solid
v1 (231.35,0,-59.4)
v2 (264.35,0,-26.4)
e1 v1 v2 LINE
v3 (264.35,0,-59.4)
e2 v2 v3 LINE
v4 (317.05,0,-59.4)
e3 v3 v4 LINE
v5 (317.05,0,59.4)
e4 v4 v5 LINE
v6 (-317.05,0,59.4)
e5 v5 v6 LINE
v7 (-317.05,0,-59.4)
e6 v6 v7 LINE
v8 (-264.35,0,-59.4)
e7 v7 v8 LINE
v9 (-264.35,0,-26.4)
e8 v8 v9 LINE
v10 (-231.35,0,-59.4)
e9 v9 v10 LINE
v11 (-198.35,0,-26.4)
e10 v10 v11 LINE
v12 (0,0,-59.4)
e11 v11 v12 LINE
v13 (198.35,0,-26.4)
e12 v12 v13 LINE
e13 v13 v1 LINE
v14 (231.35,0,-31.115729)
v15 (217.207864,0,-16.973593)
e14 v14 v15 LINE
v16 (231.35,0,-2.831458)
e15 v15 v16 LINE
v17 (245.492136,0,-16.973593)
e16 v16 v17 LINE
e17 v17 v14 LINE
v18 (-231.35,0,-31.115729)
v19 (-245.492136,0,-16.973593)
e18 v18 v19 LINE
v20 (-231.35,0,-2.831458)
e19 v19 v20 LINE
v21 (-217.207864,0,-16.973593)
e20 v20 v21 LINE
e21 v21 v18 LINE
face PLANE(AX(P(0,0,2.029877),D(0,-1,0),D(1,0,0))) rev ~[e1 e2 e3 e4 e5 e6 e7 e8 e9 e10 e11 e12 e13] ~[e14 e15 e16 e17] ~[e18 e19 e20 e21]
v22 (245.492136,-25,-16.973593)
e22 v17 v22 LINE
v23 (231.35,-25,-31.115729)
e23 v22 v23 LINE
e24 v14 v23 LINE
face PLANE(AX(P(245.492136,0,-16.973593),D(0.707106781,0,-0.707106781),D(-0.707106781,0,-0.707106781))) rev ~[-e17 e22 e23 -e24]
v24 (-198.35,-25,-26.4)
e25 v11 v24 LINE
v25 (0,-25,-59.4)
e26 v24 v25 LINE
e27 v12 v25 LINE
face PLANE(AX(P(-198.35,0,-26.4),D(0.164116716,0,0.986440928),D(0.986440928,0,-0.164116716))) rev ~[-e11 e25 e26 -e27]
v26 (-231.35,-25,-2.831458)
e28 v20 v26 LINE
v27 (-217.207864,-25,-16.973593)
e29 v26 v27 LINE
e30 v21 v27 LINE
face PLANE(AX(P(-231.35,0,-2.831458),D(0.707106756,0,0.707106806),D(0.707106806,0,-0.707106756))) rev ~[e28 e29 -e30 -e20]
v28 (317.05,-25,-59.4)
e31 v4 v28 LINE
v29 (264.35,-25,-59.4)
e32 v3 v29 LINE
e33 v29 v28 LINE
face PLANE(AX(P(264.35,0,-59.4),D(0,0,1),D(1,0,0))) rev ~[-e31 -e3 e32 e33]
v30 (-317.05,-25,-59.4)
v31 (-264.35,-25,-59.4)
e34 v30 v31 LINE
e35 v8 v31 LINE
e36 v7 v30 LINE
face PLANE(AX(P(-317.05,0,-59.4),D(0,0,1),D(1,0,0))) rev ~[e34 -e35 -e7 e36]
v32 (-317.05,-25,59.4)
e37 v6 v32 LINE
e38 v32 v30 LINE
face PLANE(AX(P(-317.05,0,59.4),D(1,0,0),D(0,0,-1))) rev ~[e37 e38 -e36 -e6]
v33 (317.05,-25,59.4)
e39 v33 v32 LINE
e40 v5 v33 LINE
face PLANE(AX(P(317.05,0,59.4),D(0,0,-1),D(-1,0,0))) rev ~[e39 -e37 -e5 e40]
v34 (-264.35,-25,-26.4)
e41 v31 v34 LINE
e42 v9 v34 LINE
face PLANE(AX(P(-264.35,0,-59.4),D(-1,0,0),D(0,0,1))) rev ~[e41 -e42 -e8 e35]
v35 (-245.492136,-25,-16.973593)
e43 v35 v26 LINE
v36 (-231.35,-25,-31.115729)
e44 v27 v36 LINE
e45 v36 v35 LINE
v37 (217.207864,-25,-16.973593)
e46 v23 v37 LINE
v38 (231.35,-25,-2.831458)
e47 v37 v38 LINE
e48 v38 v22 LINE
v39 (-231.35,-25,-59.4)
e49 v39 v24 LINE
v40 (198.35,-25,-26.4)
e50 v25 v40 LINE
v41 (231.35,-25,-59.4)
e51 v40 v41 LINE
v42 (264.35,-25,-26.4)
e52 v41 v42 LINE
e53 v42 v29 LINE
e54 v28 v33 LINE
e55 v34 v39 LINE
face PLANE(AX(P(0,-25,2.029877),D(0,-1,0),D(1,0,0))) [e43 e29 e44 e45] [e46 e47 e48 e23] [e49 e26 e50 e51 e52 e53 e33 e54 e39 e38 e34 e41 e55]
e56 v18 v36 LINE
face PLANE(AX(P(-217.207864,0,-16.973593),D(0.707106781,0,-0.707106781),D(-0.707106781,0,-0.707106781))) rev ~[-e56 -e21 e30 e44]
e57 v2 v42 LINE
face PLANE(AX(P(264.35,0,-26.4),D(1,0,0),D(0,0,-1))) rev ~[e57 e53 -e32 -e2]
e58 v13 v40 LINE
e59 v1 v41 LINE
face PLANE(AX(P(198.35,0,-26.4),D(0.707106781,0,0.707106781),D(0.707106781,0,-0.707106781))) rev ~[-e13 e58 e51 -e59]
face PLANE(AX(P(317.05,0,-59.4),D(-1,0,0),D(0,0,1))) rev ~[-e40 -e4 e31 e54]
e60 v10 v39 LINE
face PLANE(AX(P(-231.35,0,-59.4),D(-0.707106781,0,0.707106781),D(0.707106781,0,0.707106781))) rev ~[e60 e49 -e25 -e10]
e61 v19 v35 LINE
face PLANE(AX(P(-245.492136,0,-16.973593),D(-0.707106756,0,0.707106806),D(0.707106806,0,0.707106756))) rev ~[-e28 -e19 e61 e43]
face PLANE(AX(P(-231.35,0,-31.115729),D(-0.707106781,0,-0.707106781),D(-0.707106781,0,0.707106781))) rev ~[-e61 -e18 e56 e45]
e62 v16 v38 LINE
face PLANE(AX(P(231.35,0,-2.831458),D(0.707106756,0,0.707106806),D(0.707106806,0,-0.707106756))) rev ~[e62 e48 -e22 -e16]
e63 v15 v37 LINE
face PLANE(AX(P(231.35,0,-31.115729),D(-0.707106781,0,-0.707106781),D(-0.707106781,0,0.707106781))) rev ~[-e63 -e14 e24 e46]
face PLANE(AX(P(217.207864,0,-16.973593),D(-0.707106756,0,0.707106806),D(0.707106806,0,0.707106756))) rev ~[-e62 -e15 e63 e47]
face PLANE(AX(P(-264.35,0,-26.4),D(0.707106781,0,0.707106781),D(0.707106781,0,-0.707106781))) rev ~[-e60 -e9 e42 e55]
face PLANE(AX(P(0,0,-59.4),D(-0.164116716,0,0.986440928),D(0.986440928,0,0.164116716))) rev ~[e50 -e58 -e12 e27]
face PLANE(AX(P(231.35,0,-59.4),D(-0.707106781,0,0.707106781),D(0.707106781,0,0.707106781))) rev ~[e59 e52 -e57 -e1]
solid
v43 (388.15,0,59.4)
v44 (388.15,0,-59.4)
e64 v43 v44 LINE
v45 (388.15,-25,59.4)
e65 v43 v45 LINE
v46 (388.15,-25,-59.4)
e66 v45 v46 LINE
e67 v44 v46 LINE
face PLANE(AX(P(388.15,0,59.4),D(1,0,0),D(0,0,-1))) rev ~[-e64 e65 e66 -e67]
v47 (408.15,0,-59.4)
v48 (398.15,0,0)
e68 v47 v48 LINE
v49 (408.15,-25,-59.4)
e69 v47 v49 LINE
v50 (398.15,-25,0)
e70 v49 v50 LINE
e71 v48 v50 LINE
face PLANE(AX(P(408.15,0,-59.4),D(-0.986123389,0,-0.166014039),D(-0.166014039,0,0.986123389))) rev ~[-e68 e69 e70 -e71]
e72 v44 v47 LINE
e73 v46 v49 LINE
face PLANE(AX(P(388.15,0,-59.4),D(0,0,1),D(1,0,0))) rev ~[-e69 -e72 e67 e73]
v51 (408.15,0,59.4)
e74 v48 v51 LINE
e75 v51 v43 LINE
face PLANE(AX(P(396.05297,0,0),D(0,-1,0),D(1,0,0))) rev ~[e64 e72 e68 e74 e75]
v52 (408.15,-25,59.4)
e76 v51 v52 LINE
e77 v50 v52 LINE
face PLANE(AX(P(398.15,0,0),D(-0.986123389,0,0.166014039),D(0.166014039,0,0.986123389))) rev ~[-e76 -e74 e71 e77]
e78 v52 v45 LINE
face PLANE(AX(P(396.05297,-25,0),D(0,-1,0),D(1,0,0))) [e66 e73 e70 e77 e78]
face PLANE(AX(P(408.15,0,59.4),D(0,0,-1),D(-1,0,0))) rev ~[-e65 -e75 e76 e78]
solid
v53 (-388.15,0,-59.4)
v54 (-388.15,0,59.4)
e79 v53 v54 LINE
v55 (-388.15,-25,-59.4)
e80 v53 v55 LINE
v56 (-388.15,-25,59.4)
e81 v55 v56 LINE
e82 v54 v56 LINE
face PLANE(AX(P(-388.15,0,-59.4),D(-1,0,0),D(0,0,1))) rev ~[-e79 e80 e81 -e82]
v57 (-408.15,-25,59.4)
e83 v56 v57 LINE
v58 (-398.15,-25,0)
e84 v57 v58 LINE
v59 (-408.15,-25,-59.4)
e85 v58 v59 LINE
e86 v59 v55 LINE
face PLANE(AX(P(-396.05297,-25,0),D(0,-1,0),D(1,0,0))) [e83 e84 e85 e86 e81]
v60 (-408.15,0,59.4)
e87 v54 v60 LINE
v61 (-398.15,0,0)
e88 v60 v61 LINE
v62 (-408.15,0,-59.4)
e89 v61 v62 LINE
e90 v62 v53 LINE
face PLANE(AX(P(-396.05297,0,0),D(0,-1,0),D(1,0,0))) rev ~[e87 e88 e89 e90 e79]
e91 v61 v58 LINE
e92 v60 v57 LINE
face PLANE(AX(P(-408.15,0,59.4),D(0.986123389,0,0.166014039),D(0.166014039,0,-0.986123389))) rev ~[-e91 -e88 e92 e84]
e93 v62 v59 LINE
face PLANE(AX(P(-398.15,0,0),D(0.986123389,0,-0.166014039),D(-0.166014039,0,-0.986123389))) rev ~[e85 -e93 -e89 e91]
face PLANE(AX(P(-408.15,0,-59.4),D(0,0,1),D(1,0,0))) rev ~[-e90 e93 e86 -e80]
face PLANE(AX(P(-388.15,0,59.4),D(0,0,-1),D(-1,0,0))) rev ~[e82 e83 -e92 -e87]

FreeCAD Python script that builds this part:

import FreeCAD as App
import Part
import Sketcher

V = App.Vector
Q = App.Units.Quantity


def add_polygon(sketch, points):
    """Adds a closed chain of lines whose ends are joined by coincident constraints."""
    first, n = sketch.GeometryCount, len(points)
    for a, b in zip(points, points[1:] + points[:1]):
        sketch.addGeometry(Part.LineSegment(App.Vector(*a, 0), App.Vector(*b, 0)), False)
    for i in range(n):
        sketch.addConstraint(Sketcher.Constraint("Coincident", first + i, 2, first + (i + 1) % n, 1))

doc = App.newDocument("Part")
body = doc.addObject("PartDesign::Body", "Body")
body.AllowCompound = True

sketch1 = body.newObject("Sketcher::SketchObject", "Sketch")
sketch1.AttachmentSupport = (doc.getObject("XZ_Plane"), [""])
sketch1.MapMode = "FlatFace"
add_polygon(sketch1, [(-388, -59), (-388, 59), (-408, 59), (-398, 0), (-408, -59)])
add_polygon(sketch1, [(264, -59), (317, -59), (317, 59), (-317, 59), (-317, -59), (-264, -59), (-264, -26), (-231, -59), (-198, -26), (0, -59), (198, -26), (231, -59), (264, -26)])
add_polygon(sketch1, [(-231, -31), (-245, -17), (-231, -3), (-217, -17)])
add_polygon(sketch1, [(245, -17), (231, -31), (217, -17), (231, -3)])
add_polygon(sketch1, [(388, -59), (408, -59), (398, 0), (408, 59), (388, 59)])
sketch1.addConstraint(Sketcher.Constraint("Vertical", 0))
sketch1.addConstraint(Sketcher.Constraint("Horizontal", 1))
sketch1.addConstraint(Sketcher.Constraint("Horizontal", 4))
sketch1.addConstraint(Sketcher.Constraint("Horizontal", 5))
sketch1.addConstraint(Sketcher.Constraint("Vertical", 6))
sketch1.addConstraint(Sketcher.Constraint("Horizontal", 7))
sketch1.addConstraint(Sketcher.Constraint("Vertical", 8))
sketch1.addConstraint(Sketcher.Constraint("Horizontal", 9))
sketch1.addConstraint(Sketcher.Constraint("Vertical", 10))
sketch1.addConstraint(Sketcher.Constraint("Vertical", 17))
sketch1.addConstraint(Sketcher.Constraint("Horizontal", 26))
sketch1.addConstraint(Sketcher.Constraint("Horizontal", 29))
sketch1.addConstraint(Sketcher.Constraint("Vertical", 30))
sketch1.addConstraint(Sketcher.Constraint("Symmetric", 5, 2, 7, 2, -1, 1))
sketch1.addConstraint(Sketcher.Constraint("Symmetric", 1, 2, 26, 2, -1, 1))
sketch1.addConstraint(Sketcher.Constraint("Symmetric", 2, 2, 27, 2, -1, 1))
sketch1.addConstraint(Sketcher.Constraint("Symmetric", 3, 2, 28, 2, -1, 1))
sketch1.addConstraint(Sketcher.Constraint("Symmetric", 12, 2, 14, 2, -2))
sketch1.addConstraint(Sketcher.Constraint("Symmetric", 11, 2, 15, 2, -2))
sketch1.addConstraint(Sketcher.Constraint("Symmetric", 10, 2, 16, 2, -2))
sketch1.addConstraint(Sketcher.Constraint("Symmetric", 21, 2, 22, 2, -2))
sketch1.addConstraint(Sketcher.Constraint("Symmetric", 20, 2, 23, 2, -2))
sketch1.addConstraint(Sketcher.Constraint("Symmetric", 19, 2, 24, 2, -2))
sketch1.addConstraint(Sketcher.Constraint("Symmetric", 18, 2, 25, 2, -2))
sketch1.addConstraint(Sketcher.Constraint("Symmetric", 3, 2, 26, 2, -2))
sketch1.addConstraint(Sketcher.Constraint("PointOnObject", 2, 2, -1))
sketch1.addConstraint(Sketcher.Constraint("PointOnObject", 13, 2, -2))
sketch1.addConstraint(Sketcher.Constraint("Perpendicular", 11, 12))
sketch1.addConstraint(Sketcher.Constraint("Perpendicular", 12, 15))
sketch1.addConstraint(Sketcher.Constraint("Perpendicular", 16, 18))
sketch1.addConstraint(Sketcher.Constraint("Perpendicular", 18, 19))
sketch1.addConstraint(Sketcher.Constraint("Perpendicular", 19, 20))
sketch1.addConstraint(Sketcher.Constraint("Perpendicular", 20, 21))
sketch1.addConstraint(Sketcher.Constraint("Horizontal", 4, 2, 5, 2))
sketch1.addConstraint(Sketcher.Constraint("Horizontal", 5, 2, 8, 2))
sketch1.addConstraint(Sketcher.Constraint("Horizontal", 9, 2, 11, 2))
sketch1.addConstraint(Sketcher.Constraint("Horizontal", 10, 2, 12, 2))
sketch1.addConstraint(Sketcher.Constraint("Horizontal", 11, 2, 13, 2))
sketch1.addConstraint(Sketcher.Constraint("Horizontal", 18, 2, 20, 2))
sketch1.addConstraint(Sketcher.Constraint("Vertical", 11, 2, 19, 2))
sketch1.addConstraint(Sketcher.Constraint("Equal", 4, 26))
sketch1.addConstraint(Sketcher.Constraint("DistanceX", 1, 2, 1, 1, Q("20 mm")))
sketch1.addConstraint(Sketcher.Constraint("DistanceY", 10, 1, 10, 2, Q("33 mm")))
sketch1.addConstraint(Sketcher.Constraint("Distance", 18, Q("20.000001 mm")))
sketch1.addConstraint(Sketcher.Constraint("DistanceX", 5, 1, 5, 2, Q("52.7 mm")))
sketch1.addConstraint(Sketcher.Constraint("DistanceX", 7, 2, 7, 1, Q("634.1 mm")))
sketch1.addConstraint(Sketcher.Constraint("DistanceY", 0, 1, 0, 2, Q("118.8 mm")))
sketch1.addConstraint(Sketcher.Constraint("DistanceX", 2, 2, 0, 2, Q("10 mm")))
sketch1.addConstraint(Sketcher.Constraint("DistanceX", 4, 2, 5, 2, Q("705.2 mm")))
sketch1.addConstraint(Sketcher.Constraint("DistanceY", 19, 2, -1, 1, Q("2.831458 mm")))
pad1 = body.newObject("PartDesign::Pad", "Pad")
pad1.Profile = sketch1
pad1.Length = 25

doc.recompute()
